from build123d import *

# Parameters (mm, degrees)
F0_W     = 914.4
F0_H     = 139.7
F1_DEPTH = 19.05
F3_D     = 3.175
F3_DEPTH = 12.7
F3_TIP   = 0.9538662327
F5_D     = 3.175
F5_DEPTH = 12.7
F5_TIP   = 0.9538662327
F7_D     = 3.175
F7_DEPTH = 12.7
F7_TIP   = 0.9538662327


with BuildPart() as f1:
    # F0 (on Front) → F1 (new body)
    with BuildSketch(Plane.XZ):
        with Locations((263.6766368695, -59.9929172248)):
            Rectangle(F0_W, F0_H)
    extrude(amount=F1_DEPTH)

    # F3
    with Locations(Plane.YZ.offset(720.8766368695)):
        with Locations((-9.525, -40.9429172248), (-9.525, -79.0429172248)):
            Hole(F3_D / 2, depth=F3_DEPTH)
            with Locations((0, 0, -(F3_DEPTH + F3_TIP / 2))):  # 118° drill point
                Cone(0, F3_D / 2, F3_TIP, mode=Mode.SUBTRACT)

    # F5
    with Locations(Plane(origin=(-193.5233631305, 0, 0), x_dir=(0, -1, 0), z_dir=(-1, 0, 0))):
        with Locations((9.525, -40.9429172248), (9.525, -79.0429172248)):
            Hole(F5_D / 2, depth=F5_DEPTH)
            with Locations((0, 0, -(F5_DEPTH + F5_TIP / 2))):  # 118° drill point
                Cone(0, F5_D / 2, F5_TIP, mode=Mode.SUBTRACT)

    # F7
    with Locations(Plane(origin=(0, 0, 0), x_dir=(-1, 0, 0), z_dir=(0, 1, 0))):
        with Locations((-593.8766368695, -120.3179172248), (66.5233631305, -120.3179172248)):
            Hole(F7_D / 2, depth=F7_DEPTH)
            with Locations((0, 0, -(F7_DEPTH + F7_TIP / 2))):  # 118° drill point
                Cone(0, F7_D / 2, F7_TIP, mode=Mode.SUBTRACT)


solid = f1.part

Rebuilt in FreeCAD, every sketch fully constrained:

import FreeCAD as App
import Part
import Sketcher
from FreeCAD import Vector
Q = App.Units.Quantity

doc = App.newDocument("Part")
params = doc.addObject("Spreadsheet::Sheet", "Params")
for row, (alias, value) in enumerate([
    ("sketch1_width", "36 in"),
    ("sketch1_height", "5.5 in"),
    ("pad1_length", "0.75 in"),
    ("sketch2_diameter", "0.125 in"),
    ("hole_diameter", "0.125 in"),
    ("hole_depth", "0.5 in"),
    ("sketch3_diameter", "0.125 in"),
    ("hole2_diameter", "0.125 in"),
    ("hole2_depth", "0.5 in"),
    ("sketch4_diameter", "0.125 in"),
    ("hole3_diameter", "0.125 in"),
    ("hole3_depth", "0.5 in"),
], start=1):
    params.set(f"A{row}", alias)
    params.set(f"B{row}", "=" + value)
    params.setAlias(f"B{row}", alias)

body = doc.addObject("PartDesign::Body", "Body")

# Sketch on XZ plane
sketch1 = doc.addObject("Sketcher::SketchObject", "Sketch")
body.addObject(sketch1)
sketch1.AttachmentSupport = (doc.XZ_Plane, [""])
sketch1.MapMode = "FlatFace"
sketch1.addGeometry([
    Part.LineSegment(Vector(-193.523363, 9.857083, 0), Vector(-193.523363, -129.842917, 0)),
    Part.LineSegment(Vector(-193.523363, -129.842917, 0), Vector(720.876637, -129.842917, 0)),
    Part.LineSegment(Vector(720.876637, -129.842917, 0), Vector(720.876637, 9.857083, 0)),
    Part.LineSegment(Vector(720.876637, 9.857083, 0), Vector(-193.523363, 9.857083, 0)),
], False)
sketch1.addConstraint([
    Sketcher.Constraint("Coincident", 0, 2, 1, 1),
    Sketcher.Constraint("Coincident", 1, 2, 2, 1),
    Sketcher.Constraint("Coincident", 2, 2, 3, 1),
    Sketcher.Constraint("Coincident", 3, 2, 0, 1),
    Sketcher.Constraint("Vertical", 0),
    Sketcher.Constraint("Horizontal", 1),
    Sketcher.Constraint("Vertical", 2),
    Sketcher.Constraint("Horizontal", 3),
    Sketcher.Constraint("DistanceX", 1, 1, 1, 2, Q("36 in")),
    Sketcher.Constraint("DistanceY", 0, 2, 0, 1, Q("5.5 in")),
    Sketcher.Constraint("DistanceX", 0, 2, -1, 1, Q("193.523363 mm")),
    Sketcher.Constraint("DistanceY", 0, 2, -1, 1, Q("129.842917 mm")),
])
sketch1.setExpression("Constraints[8]", "Params.sketch1_width")
sketch1.setExpression("Constraints[9]", "Params.sketch1_height")
pad1 = doc.addObject("PartDesign::Pad", "Pad")
body.addObject(pad1)
pad1.Profile = sketch1
pad1.setExpression("Length", "Params.pad1_length")

# Sketch on YZ plane
sketch2 = doc.addObject("Sketcher::SketchObject", "Sketch001")
body.addObject(sketch2)
sketch2.AttachmentSupport = (doc.YZ_Plane, [""])
sketch2.MapMode = "FlatFace"
sketch2.AttachmentOffset = App.Placement(Vector(0, 0, 720.876637), App.Rotation())
sketch2.addGeometry([
    Part.Circle(Vector(-9.525, -40.942917, 0), Vector(0, 0, 1), 1.5875),
    Part.Circle(Vector(-9.525, -79.042917, 0), Vector(0, 0, 1), 1.5875),
], False)
sketch2.addConstraint([
    Sketcher.Constraint("Equal", 0, 1),
    Sketcher.Constraint("Vertical", 0, 3, 1, 3),
    Sketcher.Constraint("Diameter", 0, Q("0.125 in")),
    Sketcher.Constraint("DistanceY", 1, 3, 0, 3, Q("1.5 in")),
    Sketcher.Constraint("DistanceX", 0, 3, -1, 1, Q("0.375 in")),
    Sketcher.Constraint("DistanceY", 0, 3, -1, 1, Q("40.942917 mm")),
])
sketch2.setExpression("Constraints[2]", "Params.sketch2_diameter")
doc.recompute()
hole = doc.addObject("PartDesign::Hole", "Hole")
body.addObject(hole)
hole.Profile = sketch2
hole.ThreadType = "None"
hole.setExpression("Diameter", "Params.hole_diameter")
hole.DepthType = "Dimension"
hole.setExpression("Depth", "Params.hole_depth")
hole.DrillPoint = "Angled"
hole.DrillPointAngle = 118

# Sketch on YZ plane
sketch3 = doc.addObject("Sketcher::SketchObject", "Sketch002")
body.addObject(sketch3)
sketch3.AttachmentSupport = (doc.YZ_Plane, [""])
sketch3.MapMode = "FlatFace"
sketch3.AttachmentOffset = App.Placement(Vector(0, 0, -193.523363), App.Rotation())
sketch3.addGeometry([
    Part.Circle(Vector(-9.525, -40.942917, 0), Vector(0, 0, 1), 1.5875),
    Part.Circle(Vector(-9.525, -79.042917, 0), Vector(0, 0, 1), 1.5875),
], False)
sketch3.addConstraint([
    Sketcher.Constraint("Equal", 0, 1),
    Sketcher.Constraint("Vertical", 0, 3, 1, 3),
    Sketcher.Constraint("Diameter", 0, Q("0.125 in")),
    Sketcher.Constraint("DistanceY", 1, 3, 0, 3, Q("1.5 in")),
    Sketcher.Constraint("DistanceX", 0, 3, -1, 1, Q("0.375 in")),
    Sketcher.Constraint("DistanceY", 0, 3, -1, 1, Q("40.942917 mm")),
])
sketch3.setExpression("Constraints[2]", "Params.sketch3_diameter")
doc.recompute()
hole2 = doc.addObject("PartDesign::Hole", "Hole001")
body.addObject(hole2)
hole2.Profile = sketch3
hole2.ThreadType = "None"
hole2.setExpression("Diameter", "Params.hole2_diameter")
hole2.DepthType = "Dimension"
hole2.setExpression("Depth", "Params.hole2_depth")
hole2.DrillPoint = "Angled"
hole2.DrillPointAngle = 118
hole2.Reversed = True

# Sketch on XZ plane
sketch4 = doc.addObject("Sketcher::SketchObject", "Sketch003")
body.addObject(sketch4)
sketch4.AttachmentSupport = (doc.XZ_Plane, [""])
sketch4.MapMode = "FlatFace"
sketch4.addGeometry([
    Part.Circle(Vector(593.876637, -120.317917, 0), Vector(0, 0, 1), 1.5875),
    Part.Circle(Vector(-66.523363, -120.317917, 0), Vector(0, 0, 1), 1.5875),
], False)
sketch4.addConstraint([
    Sketcher.Constraint("Equal", 0, 1),
    Sketcher.Constraint("Horizontal", 0, 3, 1, 3),
    Sketcher.Constraint("Diameter", 0, Q("0.125 in")),
    Sketcher.Constraint("DistanceX", 1, 3, 0, 3, Q("26 in")),
    Sketcher.Constraint("DistanceX", -1, 1, 0, 3, Q("593.876637 mm")),
    Sketcher.Constraint("DistanceY", 0, 3, -1, 1, Q("120.317917 mm")),
])
sketch4.setExpression("Constraints[2]", "Params.sketch4_diameter")
doc.recompute()
hole3 = doc.addObject("PartDesign::Hole", "Hole002")
body.addObject(hole3)
hole3.Profile = sketch4
hole3.ThreadType = "None"
hole3.setExpression("Diameter", "Params.hole3_diameter")
hole3.DepthType = "Dimension"
hole3.setExpression("Depth", "Params.hole3_depth")
hole3.DrillPoint = "Angled"
hole3.DrillPointAngle = 118
hole3.Reversed = True

doc.recompute()
